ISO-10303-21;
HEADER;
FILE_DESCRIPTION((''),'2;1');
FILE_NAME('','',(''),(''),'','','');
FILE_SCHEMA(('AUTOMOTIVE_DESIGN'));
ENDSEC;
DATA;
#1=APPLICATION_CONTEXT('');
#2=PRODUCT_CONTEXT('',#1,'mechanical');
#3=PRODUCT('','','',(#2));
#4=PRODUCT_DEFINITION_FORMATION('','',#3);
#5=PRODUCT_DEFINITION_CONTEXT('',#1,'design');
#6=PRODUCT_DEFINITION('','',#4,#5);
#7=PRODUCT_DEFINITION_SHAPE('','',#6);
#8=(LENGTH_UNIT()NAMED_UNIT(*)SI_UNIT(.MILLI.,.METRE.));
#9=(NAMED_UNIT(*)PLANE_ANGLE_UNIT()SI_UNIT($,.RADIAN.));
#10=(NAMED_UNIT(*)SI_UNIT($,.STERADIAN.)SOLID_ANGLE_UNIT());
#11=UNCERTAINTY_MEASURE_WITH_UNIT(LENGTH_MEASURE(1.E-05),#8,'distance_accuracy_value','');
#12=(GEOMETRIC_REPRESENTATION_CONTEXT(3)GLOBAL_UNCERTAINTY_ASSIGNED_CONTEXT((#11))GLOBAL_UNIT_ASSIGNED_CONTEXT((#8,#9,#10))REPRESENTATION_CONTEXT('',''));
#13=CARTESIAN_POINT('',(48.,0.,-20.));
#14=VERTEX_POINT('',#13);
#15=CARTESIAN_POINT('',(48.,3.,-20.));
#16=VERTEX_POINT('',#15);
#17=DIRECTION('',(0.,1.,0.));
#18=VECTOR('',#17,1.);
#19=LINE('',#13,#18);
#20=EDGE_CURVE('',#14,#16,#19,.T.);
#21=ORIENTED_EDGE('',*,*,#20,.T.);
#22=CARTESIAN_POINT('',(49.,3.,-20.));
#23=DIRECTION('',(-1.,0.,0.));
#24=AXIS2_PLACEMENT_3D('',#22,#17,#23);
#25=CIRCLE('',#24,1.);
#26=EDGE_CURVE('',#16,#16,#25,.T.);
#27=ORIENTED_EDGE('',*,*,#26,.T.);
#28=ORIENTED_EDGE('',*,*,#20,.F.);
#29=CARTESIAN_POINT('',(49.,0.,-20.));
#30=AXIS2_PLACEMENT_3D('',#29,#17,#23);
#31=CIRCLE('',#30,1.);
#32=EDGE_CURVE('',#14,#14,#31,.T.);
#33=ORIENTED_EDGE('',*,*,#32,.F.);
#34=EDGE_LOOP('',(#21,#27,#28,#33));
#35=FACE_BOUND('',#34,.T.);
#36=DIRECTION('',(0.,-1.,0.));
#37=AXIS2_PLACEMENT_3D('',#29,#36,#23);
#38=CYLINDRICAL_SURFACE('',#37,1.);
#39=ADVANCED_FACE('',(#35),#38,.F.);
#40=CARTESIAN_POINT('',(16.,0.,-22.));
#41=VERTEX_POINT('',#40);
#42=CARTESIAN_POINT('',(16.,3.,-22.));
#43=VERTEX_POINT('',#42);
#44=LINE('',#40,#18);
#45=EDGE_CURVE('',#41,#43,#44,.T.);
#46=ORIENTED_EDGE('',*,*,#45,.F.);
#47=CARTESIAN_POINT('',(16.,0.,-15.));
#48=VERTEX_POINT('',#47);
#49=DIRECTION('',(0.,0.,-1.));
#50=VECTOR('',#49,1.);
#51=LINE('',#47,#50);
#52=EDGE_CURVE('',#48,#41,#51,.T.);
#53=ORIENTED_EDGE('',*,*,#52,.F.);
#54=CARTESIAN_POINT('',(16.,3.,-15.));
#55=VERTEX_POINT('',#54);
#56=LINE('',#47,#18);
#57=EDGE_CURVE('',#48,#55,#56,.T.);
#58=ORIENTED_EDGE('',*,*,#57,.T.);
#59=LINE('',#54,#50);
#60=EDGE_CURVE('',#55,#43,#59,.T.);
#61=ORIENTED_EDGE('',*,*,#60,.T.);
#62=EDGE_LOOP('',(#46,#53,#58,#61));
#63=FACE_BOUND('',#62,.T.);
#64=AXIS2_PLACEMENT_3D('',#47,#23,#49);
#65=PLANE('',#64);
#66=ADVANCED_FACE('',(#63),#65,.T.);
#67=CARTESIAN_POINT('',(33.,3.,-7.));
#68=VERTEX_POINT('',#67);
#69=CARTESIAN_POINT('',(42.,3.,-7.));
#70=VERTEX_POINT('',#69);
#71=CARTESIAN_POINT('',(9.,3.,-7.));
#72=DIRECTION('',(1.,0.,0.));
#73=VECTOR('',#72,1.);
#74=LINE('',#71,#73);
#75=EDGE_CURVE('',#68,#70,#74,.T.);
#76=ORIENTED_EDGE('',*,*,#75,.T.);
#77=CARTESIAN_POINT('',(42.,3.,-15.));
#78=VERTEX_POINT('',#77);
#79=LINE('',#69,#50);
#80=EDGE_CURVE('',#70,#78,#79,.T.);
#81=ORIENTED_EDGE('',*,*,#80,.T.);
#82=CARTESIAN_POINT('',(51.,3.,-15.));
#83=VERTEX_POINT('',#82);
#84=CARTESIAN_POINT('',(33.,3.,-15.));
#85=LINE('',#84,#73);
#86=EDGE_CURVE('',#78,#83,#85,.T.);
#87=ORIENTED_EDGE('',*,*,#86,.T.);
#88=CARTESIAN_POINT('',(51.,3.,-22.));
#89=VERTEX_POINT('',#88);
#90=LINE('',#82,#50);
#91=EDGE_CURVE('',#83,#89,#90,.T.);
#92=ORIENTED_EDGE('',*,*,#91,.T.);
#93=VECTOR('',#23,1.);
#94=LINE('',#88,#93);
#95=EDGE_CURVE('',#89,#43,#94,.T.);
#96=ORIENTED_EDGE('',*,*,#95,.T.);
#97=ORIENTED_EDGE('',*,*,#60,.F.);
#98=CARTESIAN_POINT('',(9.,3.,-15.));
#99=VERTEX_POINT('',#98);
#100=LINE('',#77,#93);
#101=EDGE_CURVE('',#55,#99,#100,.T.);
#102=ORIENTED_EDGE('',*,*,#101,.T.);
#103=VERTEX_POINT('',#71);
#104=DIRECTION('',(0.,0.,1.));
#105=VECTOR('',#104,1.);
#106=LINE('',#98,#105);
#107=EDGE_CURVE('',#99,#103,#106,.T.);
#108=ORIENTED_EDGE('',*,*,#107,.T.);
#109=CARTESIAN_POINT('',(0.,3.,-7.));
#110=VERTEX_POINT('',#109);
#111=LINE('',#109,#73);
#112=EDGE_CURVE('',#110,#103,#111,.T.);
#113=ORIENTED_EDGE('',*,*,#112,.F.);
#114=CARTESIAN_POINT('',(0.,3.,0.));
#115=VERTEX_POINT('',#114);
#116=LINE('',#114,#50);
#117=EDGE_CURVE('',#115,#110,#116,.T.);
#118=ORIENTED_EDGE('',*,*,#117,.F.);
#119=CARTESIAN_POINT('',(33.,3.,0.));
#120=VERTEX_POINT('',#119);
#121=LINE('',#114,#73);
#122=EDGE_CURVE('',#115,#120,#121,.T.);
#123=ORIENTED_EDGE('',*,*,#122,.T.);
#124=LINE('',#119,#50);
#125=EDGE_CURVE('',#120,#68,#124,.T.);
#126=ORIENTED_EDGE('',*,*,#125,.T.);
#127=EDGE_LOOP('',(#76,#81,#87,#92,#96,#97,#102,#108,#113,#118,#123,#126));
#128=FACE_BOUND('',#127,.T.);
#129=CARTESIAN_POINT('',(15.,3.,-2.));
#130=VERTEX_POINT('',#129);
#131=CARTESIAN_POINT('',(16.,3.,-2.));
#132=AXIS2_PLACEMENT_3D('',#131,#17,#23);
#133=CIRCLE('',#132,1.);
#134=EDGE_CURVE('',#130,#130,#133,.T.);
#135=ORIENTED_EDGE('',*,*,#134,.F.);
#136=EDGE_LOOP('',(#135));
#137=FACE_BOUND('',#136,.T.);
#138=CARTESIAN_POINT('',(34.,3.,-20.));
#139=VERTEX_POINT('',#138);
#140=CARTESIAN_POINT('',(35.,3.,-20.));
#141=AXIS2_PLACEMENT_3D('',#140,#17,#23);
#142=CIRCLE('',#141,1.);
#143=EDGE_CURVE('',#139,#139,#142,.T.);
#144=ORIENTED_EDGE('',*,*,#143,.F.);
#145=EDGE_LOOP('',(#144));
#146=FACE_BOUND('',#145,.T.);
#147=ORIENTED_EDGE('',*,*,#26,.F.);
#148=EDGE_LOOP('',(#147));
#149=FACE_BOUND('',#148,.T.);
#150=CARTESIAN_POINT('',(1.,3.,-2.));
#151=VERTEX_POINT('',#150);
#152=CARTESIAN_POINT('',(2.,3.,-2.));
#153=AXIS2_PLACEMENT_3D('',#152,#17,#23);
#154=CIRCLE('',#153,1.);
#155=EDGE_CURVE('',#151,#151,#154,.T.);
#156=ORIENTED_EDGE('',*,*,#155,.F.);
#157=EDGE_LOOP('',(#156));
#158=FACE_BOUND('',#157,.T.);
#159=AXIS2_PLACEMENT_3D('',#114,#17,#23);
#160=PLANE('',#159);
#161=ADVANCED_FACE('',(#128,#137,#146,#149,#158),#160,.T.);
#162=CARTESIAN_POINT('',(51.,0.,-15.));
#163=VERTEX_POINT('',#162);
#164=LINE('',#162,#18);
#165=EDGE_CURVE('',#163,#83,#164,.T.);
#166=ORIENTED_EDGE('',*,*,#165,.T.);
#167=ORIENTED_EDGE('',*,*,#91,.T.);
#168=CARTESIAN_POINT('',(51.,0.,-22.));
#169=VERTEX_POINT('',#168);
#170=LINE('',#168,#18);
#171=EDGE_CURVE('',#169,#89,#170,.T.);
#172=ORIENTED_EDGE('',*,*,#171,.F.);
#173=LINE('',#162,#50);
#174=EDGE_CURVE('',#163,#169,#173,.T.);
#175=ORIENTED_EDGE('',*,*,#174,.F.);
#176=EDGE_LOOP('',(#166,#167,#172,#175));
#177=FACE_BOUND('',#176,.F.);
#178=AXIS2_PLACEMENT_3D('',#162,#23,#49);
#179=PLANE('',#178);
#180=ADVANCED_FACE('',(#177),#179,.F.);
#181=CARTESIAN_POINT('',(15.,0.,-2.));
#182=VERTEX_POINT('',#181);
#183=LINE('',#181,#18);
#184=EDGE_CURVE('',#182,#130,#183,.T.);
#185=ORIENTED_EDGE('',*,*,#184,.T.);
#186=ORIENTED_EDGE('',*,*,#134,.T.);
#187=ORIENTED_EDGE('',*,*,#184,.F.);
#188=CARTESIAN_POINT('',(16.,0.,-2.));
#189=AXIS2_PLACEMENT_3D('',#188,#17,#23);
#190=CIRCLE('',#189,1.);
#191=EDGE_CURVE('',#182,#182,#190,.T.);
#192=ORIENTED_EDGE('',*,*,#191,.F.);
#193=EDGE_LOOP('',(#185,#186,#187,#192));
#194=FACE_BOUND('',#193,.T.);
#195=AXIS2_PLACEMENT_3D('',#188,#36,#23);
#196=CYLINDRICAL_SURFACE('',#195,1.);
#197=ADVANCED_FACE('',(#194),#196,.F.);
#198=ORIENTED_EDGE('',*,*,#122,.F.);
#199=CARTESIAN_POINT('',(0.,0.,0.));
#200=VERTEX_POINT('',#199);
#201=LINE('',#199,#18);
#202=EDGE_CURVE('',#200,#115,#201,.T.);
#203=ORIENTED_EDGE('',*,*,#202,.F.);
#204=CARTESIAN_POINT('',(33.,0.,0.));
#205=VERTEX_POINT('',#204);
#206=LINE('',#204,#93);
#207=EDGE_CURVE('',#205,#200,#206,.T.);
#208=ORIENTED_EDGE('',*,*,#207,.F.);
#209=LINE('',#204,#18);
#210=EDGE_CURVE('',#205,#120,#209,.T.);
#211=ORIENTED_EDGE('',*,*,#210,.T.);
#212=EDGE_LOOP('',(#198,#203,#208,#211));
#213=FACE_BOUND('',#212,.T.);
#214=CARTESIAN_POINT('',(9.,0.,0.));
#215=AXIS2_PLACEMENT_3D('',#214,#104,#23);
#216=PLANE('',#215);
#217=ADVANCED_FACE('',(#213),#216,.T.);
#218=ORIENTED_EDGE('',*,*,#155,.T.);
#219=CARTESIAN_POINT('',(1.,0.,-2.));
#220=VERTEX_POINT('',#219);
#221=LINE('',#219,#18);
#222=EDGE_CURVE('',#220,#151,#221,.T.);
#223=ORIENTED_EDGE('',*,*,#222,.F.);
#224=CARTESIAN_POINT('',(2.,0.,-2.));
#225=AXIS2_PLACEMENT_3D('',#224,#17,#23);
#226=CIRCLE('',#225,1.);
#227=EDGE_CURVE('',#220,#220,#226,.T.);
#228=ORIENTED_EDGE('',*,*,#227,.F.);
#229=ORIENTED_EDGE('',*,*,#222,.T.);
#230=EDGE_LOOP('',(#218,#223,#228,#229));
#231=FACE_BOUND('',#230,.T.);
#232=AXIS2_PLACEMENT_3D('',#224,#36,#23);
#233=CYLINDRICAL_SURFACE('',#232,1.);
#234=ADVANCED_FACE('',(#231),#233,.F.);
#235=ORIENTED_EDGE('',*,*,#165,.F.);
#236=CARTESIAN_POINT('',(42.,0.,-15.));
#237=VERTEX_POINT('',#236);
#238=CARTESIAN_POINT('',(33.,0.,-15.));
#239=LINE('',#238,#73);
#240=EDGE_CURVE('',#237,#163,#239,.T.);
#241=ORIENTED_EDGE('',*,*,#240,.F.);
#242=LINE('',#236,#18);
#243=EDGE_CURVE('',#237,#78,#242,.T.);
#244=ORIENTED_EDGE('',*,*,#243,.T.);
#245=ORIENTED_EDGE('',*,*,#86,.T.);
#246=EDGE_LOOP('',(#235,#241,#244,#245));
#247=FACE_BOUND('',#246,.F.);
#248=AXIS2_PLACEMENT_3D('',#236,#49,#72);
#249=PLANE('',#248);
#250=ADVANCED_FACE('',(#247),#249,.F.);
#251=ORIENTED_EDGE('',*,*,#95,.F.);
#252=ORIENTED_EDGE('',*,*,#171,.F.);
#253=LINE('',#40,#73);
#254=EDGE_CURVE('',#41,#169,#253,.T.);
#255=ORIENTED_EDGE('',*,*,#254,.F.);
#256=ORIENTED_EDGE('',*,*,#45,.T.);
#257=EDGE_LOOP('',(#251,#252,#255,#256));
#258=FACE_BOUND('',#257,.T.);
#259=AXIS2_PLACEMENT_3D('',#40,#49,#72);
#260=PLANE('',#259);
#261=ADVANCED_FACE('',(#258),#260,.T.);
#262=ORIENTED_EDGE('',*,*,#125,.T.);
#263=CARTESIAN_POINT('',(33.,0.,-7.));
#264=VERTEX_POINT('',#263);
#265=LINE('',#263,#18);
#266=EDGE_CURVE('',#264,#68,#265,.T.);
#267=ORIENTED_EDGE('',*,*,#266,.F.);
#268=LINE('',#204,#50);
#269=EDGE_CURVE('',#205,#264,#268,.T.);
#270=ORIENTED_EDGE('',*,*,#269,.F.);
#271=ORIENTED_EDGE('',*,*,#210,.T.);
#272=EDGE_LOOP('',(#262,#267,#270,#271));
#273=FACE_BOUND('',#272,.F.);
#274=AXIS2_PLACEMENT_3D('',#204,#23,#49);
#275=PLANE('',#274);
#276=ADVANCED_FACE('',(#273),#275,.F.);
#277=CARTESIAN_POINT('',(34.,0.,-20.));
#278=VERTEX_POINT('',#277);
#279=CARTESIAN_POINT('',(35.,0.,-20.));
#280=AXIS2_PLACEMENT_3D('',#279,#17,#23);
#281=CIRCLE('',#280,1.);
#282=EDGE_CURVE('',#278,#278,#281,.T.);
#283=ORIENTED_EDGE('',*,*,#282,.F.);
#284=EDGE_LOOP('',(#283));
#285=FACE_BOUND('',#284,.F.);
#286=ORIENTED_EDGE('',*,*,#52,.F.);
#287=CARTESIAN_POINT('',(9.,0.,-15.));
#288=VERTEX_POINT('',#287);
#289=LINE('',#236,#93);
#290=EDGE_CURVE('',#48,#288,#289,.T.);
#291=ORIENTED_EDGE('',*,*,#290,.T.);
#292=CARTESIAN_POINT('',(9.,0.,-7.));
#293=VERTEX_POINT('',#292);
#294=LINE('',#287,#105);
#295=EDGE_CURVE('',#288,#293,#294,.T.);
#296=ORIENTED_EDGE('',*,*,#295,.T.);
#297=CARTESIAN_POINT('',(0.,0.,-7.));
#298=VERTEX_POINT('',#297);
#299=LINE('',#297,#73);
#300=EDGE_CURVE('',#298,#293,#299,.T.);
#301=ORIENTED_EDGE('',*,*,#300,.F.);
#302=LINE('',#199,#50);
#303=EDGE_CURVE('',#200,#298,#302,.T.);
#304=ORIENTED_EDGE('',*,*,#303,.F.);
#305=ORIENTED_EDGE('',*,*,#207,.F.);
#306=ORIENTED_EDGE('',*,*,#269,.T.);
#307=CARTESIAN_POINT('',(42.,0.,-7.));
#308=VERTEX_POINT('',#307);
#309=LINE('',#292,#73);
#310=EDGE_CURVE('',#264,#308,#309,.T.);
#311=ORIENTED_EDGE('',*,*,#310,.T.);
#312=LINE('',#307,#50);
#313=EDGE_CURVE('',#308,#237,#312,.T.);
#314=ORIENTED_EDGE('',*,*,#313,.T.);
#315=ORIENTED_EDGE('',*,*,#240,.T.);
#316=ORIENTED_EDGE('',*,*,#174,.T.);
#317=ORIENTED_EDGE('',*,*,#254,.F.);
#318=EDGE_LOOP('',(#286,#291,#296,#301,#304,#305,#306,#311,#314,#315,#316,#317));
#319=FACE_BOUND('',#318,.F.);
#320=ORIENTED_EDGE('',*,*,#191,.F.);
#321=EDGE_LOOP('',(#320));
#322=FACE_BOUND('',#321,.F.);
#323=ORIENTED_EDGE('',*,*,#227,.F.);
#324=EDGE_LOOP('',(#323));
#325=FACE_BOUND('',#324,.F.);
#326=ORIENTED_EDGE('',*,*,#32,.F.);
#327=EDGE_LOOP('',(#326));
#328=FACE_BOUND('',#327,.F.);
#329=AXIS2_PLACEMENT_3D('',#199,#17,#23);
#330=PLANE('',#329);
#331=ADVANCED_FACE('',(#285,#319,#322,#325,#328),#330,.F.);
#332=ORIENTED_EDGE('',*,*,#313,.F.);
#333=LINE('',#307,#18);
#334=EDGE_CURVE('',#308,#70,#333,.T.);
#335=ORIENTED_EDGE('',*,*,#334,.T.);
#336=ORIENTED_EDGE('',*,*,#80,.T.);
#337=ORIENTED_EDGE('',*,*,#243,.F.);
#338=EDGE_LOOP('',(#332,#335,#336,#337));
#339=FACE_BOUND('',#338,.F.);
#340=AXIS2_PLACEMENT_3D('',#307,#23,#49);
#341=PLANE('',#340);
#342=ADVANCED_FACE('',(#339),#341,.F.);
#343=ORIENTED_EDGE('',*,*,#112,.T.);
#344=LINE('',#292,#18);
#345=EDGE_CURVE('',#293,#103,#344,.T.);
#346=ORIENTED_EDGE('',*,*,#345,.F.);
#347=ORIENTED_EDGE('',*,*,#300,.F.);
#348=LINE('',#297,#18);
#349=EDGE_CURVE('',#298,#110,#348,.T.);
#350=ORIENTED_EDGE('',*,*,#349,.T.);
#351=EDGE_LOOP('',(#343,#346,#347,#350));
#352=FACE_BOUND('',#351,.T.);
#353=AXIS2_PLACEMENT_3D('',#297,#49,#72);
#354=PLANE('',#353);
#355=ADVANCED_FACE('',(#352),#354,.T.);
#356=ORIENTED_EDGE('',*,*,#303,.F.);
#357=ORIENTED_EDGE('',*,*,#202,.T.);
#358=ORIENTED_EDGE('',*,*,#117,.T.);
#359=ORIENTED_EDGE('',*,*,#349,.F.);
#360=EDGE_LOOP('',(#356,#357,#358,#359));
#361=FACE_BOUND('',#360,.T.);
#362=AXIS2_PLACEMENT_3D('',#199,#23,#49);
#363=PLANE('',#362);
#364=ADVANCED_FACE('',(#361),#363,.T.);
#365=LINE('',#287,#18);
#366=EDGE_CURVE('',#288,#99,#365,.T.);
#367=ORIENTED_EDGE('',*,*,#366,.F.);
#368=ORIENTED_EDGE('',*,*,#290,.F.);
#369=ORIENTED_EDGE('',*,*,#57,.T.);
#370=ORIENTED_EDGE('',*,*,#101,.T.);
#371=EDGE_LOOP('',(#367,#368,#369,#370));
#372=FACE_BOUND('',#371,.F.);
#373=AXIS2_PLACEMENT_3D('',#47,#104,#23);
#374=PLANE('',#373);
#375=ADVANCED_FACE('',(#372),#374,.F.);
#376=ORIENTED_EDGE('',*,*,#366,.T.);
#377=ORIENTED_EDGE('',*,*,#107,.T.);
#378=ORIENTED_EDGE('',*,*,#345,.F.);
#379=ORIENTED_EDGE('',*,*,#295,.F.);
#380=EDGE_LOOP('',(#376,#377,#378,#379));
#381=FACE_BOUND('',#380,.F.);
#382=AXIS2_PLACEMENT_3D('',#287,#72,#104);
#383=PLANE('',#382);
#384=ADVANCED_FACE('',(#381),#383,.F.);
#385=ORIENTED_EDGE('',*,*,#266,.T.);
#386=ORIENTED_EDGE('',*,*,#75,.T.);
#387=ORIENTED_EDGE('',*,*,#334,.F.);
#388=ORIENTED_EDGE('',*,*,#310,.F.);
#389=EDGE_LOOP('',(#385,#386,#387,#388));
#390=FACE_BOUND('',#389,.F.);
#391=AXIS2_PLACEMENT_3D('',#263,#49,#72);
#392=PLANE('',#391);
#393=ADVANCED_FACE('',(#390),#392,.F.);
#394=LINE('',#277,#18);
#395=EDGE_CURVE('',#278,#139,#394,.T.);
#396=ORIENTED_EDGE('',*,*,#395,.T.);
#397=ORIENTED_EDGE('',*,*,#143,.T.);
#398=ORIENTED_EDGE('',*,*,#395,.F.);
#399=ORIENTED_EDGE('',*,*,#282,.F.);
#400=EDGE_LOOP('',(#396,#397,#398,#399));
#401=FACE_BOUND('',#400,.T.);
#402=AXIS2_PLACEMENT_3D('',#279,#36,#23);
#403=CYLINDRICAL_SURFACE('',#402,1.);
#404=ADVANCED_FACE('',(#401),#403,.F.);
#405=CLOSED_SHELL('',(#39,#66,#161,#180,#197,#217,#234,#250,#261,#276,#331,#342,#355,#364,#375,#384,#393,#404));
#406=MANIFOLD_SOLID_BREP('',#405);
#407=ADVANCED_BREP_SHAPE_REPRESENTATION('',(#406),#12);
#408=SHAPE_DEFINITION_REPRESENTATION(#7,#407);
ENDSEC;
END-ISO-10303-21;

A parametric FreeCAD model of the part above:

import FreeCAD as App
import Part
import Sketcher

V = App.Vector


def add_polygon(sketch, points):
    """Adds a closed chain of lines whose ends are joined by coincident constraints."""
    first, n = sketch.GeometryCount, len(points)
    for a, b in zip(points, points[1:] + points[:1]):
        sketch.addGeometry(Part.LineSegment(App.Vector(*a, 0), App.Vector(*b, 0)), False)
    for i in range(n):
        sketch.addConstraint(Sketcher.Constraint("Coincident", first + i, 2, first + (i + 1) % n, 1))

doc = App.newDocument("Part")
body = doc.addObject("PartDesign::Body", "Body")

# Sketch on XZ plane
sketch1 = body.newObject("Sketcher::SketchObject", "Sketch")
sketch1.AttachmentSupport = (doc.getObject("XZ_Plane"), [""])
sketch1.MapMode = "FlatFace"
add_polygon(sketch1, [(9, -7), (0, -7), (0, 0), (33, 0), (33, -7), (42, -7), (42, -15), (51, -15), (51, -22), (16, -22), (16, -15), (9, -15)])  # lines 0-11
sketch1.addGeometry(Part.Circle(V(16, -2, 0), V(0, 0, 1), 1), False)  # 12
sketch1.addGeometry(Part.Circle(V(2, -2, 0), V(0, 0, 1), 1), False)  # 13
sketch1.addGeometry(Part.Circle(V(49, -20, 0), V(0, 0, 1), 1), False)  # 14
sketch1.addGeometry(Part.Circle(V(35, -20, 0), V(0, 0, 1), 1), False)  # 15
sketch1.addConstraint([
    Sketcher.Constraint("Horizontal", 0),
    Sketcher.Constraint("Vertical", 1),
    Sketcher.Constraint("Horizontal", 2),
    Sketcher.Constraint("Vertical", 3),
    Sketcher.Constraint("Horizontal", 4),
    Sketcher.Constraint("Vertical", 5),
    Sketcher.Constraint("Horizontal", 6),
    Sketcher.Constraint("Vertical", 7),
    Sketcher.Constraint("Horizontal", 8),
    Sketcher.Constraint("Vertical", 9),
    Sketcher.Constraint("Horizontal", 10),
    Sketcher.Constraint("Vertical", 11),
    Sketcher.Constraint("Coincident", 1, 2, -1, 1),
    Sketcher.Constraint("Equal", 12, 13),
    Sketcher.Constraint("Equal", 13, 14),
    Sketcher.Constraint("Equal", 14, 15),
    Sketcher.Constraint("Horizontal", 12, 3, 13, 3),
    Sketcher.Constraint("Horizontal", 14, 3, 15, 3),
    Sketcher.Constraint("Horizontal", 0, 2, 3, 2),
    Sketcher.Constraint("Horizontal", 6, 2, 9, 2),
    Sketcher.Constraint("Vertical", 12, 3, 8, 2),
    Sketcher.Constraint("Equal", 0, 4),
    Sketcher.Constraint("Equal", 4, 6),
    Sketcher.Constraint("Equal", 10, 1),
    Sketcher.Constraint("Equal", 3, 7),
    Sketcher.Constraint("Diameter", 12, 2.0),
    Sketcher.Constraint("DistanceX", 10, 2, 10, 1, 7.0),
    Sketcher.Constraint("DistanceX", -1, 1, 12, 3, 16.0),
    Sketcher.Constraint("DistanceY", 12, 3, -1, 1, 2.0),
    Sketcher.Constraint("DistanceX", -1, 1, 13, 3, 2.0),
    Sketcher.Constraint("DistanceY", 7, 2, -1, 1, 22.0),
    Sketcher.Constraint("DistanceY", 14, 3, 12, 3, 18.0),
    Sketcher.Constraint("DistanceX", 12, 3, 15, 3, 19.0),
    Sketcher.Constraint("DistanceX", 2, 2, 15, 3, 2.0),
    Sketcher.Constraint("DistanceX", 2, 2, 14, 3, 16.0),
])
pad1 = body.newObject("PartDesign::Pad", "Pad")
pad1.Profile = sketch1
pad1.Length = 3
pad1.Reversed = True

doc.recompute()
